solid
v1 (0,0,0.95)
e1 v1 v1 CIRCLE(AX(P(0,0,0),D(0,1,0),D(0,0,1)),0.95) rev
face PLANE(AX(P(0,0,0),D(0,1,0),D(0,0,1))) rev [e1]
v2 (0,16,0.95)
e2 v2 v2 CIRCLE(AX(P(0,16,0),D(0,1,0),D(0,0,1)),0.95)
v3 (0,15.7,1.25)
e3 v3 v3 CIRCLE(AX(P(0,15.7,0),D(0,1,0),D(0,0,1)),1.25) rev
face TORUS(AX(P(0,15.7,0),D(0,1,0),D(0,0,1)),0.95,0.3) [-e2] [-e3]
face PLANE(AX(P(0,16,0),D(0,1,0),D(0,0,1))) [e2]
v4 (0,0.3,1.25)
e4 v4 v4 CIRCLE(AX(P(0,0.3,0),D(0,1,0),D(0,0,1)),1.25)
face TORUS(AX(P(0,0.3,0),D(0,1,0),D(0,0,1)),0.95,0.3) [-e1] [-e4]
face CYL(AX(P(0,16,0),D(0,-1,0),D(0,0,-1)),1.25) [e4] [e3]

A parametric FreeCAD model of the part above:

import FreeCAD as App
import Part
import Sketcher


def edges_at(feature, points):
    """Names of the edges that pass closest to the given points."""
    edges = feature.Shape.Edges
    near = lambda p: min(range(len(edges)), key=lambda i: edges[i].distToShape(Part.Vertex(*p))[0])
    return sorted({f"Edge{near(p) + 1}" for p in points})

doc = App.newDocument("Part")
body = doc.addObject("PartDesign::Body", "Body")

sketch1 = doc.addObject("Sketcher::SketchObject", "Sketch")
body.addObject(sketch1)
sketch1.AttachmentSupport = (doc.XZ_Plane, [""])
sketch1.MapMode = "FlatFace"
sketch1.addGeometry(Part.Circle(App.Vector(0, 0, 0), App.Vector(0, 0, 1), 1.2), False)
sketch1.addConstraint([
    Sketcher.Constraint("Coincident", 0, 3, -1, 1),
    Sketcher.Constraint("Diameter", 0, 2.5),
])
pad1 = doc.addObject("PartDesign::Pad", "Pad")
body.addObject(pad1)
pad1.Profile = sketch1
pad1.Length = 16
pad1.Reversed = True
doc.recompute()

fillet = doc.addObject("PartDesign::Fillet", "Fillet")
body.addObject(fillet)
fillet.Base = (pad1, edges_at(pad1, [(0, 0, -1.25), (0, 16, -1.25)]))
fillet.Radius = 0.3

doc.recompute()
